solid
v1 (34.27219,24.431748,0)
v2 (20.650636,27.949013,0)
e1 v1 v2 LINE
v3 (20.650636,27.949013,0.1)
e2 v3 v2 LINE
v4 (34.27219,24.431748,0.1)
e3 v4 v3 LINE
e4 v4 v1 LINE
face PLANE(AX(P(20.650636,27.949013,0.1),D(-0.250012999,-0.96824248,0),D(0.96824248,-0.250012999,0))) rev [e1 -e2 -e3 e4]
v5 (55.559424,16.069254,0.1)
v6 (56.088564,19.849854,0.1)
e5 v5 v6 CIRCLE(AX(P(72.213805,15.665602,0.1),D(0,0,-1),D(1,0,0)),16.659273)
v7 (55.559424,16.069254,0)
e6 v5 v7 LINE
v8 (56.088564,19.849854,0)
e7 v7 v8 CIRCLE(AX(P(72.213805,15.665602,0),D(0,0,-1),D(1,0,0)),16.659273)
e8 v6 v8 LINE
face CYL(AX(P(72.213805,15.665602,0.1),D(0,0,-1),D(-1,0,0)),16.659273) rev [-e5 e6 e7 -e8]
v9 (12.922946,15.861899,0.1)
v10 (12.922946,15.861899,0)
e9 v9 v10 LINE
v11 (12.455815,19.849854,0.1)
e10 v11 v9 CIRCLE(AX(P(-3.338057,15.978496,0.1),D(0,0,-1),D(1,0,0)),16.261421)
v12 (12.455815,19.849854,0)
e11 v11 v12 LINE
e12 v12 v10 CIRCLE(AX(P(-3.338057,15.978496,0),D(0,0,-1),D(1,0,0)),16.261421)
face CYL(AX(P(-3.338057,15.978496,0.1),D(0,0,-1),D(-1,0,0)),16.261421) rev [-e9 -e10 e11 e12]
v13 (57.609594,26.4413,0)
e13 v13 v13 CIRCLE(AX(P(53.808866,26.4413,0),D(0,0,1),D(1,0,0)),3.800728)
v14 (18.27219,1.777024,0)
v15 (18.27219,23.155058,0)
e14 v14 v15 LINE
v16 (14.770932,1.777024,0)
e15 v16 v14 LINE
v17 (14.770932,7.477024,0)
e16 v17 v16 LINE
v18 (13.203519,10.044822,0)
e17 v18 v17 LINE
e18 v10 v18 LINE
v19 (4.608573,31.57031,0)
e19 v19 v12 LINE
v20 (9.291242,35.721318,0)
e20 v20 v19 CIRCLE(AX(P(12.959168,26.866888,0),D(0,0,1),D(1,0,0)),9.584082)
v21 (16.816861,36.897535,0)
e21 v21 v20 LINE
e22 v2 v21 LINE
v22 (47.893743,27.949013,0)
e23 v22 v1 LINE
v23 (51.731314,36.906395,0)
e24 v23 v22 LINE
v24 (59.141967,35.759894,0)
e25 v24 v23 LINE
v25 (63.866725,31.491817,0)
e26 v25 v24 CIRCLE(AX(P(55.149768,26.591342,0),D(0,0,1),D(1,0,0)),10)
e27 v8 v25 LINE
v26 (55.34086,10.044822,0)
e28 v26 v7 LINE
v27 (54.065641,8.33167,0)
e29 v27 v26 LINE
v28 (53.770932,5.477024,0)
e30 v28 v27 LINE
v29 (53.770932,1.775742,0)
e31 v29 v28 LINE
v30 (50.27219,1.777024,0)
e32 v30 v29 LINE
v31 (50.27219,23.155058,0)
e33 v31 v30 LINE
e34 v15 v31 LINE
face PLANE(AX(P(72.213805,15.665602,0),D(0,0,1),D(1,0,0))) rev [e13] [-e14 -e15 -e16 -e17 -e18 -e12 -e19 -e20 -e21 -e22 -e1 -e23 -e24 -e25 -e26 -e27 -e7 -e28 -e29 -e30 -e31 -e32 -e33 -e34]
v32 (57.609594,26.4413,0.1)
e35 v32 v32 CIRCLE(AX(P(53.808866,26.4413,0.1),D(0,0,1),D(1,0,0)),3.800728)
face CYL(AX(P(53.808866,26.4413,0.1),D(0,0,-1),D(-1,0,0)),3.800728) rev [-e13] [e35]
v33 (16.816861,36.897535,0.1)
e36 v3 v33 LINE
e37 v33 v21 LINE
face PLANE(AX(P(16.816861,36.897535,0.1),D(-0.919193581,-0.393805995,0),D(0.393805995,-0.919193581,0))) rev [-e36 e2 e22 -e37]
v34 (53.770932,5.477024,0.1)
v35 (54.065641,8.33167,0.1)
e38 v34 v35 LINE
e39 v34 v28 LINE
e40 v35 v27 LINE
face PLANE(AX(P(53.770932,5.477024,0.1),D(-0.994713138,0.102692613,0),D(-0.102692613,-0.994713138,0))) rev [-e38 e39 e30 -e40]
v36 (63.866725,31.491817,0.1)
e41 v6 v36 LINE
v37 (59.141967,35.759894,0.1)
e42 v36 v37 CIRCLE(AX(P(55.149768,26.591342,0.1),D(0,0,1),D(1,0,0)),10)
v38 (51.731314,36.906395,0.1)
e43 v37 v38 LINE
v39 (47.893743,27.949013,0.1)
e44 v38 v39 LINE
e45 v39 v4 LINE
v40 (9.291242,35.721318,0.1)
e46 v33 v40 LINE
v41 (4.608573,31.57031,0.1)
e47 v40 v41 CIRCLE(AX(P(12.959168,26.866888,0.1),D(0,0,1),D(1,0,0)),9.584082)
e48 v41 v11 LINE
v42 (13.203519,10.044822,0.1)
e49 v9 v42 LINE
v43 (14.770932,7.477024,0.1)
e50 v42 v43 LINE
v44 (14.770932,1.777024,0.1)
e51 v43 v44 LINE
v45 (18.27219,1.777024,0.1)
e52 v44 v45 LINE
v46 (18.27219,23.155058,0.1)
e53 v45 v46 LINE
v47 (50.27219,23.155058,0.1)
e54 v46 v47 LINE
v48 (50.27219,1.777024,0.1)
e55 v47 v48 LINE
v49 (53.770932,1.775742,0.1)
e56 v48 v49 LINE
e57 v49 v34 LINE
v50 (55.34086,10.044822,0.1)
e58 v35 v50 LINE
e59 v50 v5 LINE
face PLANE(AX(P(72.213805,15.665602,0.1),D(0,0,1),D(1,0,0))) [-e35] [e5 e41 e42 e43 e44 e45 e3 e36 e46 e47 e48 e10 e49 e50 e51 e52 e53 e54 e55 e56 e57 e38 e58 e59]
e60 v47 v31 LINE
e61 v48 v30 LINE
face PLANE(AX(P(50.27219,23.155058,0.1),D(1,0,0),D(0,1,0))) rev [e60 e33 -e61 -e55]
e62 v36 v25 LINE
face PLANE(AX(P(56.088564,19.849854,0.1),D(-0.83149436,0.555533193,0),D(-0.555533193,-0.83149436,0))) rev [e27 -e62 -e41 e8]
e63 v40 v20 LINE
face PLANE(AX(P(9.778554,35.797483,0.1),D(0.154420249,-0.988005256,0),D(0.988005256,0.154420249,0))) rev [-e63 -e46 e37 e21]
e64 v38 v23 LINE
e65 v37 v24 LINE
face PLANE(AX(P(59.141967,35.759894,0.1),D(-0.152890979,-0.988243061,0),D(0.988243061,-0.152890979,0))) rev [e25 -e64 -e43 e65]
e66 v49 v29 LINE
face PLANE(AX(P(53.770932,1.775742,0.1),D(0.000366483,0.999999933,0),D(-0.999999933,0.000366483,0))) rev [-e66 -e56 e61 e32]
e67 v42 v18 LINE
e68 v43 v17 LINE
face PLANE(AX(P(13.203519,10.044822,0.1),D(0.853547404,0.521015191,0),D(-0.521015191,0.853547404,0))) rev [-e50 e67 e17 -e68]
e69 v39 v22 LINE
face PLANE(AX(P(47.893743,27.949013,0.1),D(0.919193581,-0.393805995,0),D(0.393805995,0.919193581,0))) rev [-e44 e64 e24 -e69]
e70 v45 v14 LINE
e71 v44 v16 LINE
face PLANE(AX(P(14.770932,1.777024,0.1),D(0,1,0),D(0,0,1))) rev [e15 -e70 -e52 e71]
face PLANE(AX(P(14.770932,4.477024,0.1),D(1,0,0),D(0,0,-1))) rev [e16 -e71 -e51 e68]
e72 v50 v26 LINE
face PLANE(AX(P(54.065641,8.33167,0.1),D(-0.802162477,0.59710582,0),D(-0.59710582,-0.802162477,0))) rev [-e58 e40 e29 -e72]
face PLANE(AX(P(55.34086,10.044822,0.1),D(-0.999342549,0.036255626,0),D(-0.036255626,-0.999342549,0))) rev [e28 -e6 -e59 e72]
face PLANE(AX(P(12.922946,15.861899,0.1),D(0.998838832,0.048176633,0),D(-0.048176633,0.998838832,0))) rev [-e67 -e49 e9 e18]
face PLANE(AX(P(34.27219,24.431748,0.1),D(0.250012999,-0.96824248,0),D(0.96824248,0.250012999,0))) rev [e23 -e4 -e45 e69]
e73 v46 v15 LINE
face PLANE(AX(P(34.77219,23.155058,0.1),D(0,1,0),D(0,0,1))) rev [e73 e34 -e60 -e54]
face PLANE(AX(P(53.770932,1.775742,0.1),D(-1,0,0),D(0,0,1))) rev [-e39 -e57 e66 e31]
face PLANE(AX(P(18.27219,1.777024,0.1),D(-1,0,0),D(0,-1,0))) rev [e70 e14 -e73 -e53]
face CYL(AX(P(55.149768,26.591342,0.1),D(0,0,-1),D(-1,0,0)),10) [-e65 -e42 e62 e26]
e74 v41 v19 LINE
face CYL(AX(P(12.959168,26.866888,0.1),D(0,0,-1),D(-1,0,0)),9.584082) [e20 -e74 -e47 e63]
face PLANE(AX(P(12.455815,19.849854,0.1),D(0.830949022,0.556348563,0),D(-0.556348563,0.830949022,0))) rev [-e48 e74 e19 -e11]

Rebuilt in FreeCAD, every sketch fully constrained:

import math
import FreeCAD as App
import Part
import Sketcher
from FreeCAD import Vector
Q = App.Units.Quantity

doc = App.newDocument("Part")
body = doc.addObject("PartDesign::Body", "Body")

sketch1 = body.newObject("Sketcher::SketchObject", "Sketch")
sketch1.AttachmentSupport = (doc.getObject("XY_Plane"), [""])
sketch1.MapMode = "FlatFace"
sketch1.addGeometry([
    Part.LineSegment(Vector(13.69, 36.41, 0), Vector(9.78, 35.8, 0)),
    Part.LineSegment(Vector(9.78, 35.8, 0), Vector(9.29, 35.72, 0)),
    Part.ArcOfCircle(Part.Circle(Vector(12.96, 26.87, 0), Vector(0, 0, 1), 9.58), math.radians(113), math.radians(151)),
    Part.LineSegment(Vector(4.61, 31.57, 0), Vector(12.46, 19.85, 0)),
    Part.ArcOfCircle(Part.Circle(Vector(-3.34, 15.98, 0), Vector(0, 0, 1), 16.26), math.radians(-0.41), math.radians(13.77)),
    Part.LineSegment(Vector(12.92, 15.86, 0), Vector(13.2, 10.04, 0)),
    Part.LineSegment(Vector(13.2, 10.04, 0), Vector(14.77, 7.48, 0)),
    Part.LineSegment(Vector(14.77, 7.48, 0), Vector(14.77, 1.78, 0)),
    Part.LineSegment(Vector(14.77, 1.78, 0), Vector(18.27, 1.78, 0)),
    Part.LineSegment(Vector(18.27, 1.78, 0), Vector(18.27, 23.16, 0)),
    Part.LineSegment(Vector(18.27, 23.16, 0), Vector(50.27, 23.16, 0)),
    Part.LineSegment(Vector(50.27, 23.16, 0), Vector(50.27, 1.78, 0)),
    Part.LineSegment(Vector(50.27, 1.78, 0), Vector(53.77, 1.78, 0)),
    Part.LineSegment(Vector(53.77, 1.78, 0), Vector(53.77, 5.48, 0)),
    Part.LineSegment(Vector(53.77, 5.48, 0), Vector(54.07, 8.33, 0)),
    Part.LineSegment(Vector(54.07, 8.33, 0), Vector(55.34, 10.04, 0)),
    Part.LineSegment(Vector(55.34, 10.04, 0), Vector(55.56, 16.07, 0)),
    Part.ArcOfCircle(Part.Circle(Vector(72.21, 15.67, 0), Vector(0, 0, 1), 16.66), math.radians(165.45), math.radians(178.61)),
    Part.LineSegment(Vector(56.09, 19.85, 0), Vector(63.87, 31.49, 0)),
    Part.ArcOfCircle(Part.Circle(Vector(55.15, 26.59, 0), Vector(0, 0, 1), 10), math.radians(29), math.radians(66)),
    Part.LineSegment(Vector(59.14, 35.76, 0), Vector(51.73, 36.91, 0)),
    Part.LineSegment(Vector(51.73, 36.91, 0), Vector(47.89, 27.95, 0)),
    Part.LineSegment(Vector(47.89, 27.95, 0), Vector(34.27, 24.43, 0)),
    Part.LineSegment(Vector(34.27, 24.43, 0), Vector(20.65, 27.95, 0)),
    Part.LineSegment(Vector(20.65, 27.95, 0), Vector(16.82, 36.9, 0)),
    Part.LineSegment(Vector(16.82, 36.9, 0), Vector(13.69, 36.41, 0)),
    Part.Circle(Vector(53.81, 26.44, 0), Vector(0, 0, 1), 3.8),
], False)
sketch1.addConstraint([
    Sketcher.Constraint("Coincident", 0, 2, 1, 1),
    Sketcher.Constraint("Coincident", 1, 2, 2, 1),
    Sketcher.Constraint("Coincident", 2, 2, 3, 1),
    Sketcher.Constraint("Coincident", 3, 2, 4, 2),
    Sketcher.Constraint("Coincident", 4, 1, 5, 1),
    Sketcher.Constraint("Coincident", 5, 2, 6, 1),
    Sketcher.Constraint("Coincident", 6, 2, 7, 1),
    Sketcher.Constraint("Coincident", 7, 2, 8, 1),
    Sketcher.Constraint("Coincident", 8, 2, 9, 1),
    Sketcher.Constraint("Coincident", 9, 2, 10, 1),
    Sketcher.Constraint("Coincident", 10, 2, 11, 1),
    Sketcher.Constraint("Coincident", 11, 2, 12, 1),
    Sketcher.Constraint("Coincident", 12, 2, 13, 1),
    Sketcher.Constraint("Coincident", 13, 2, 14, 1),
    Sketcher.Constraint("Coincident", 14, 2, 15, 1),
    Sketcher.Constraint("Coincident", 15, 2, 16, 1),
    Sketcher.Constraint("Coincident", 16, 2, 17, 2),
    Sketcher.Constraint("Coincident", 17, 1, 18, 1),
    Sketcher.Constraint("Coincident", 18, 2, 19, 1),
    Sketcher.Constraint("Coincident", 19, 2, 20, 1),
    Sketcher.Constraint("Coincident", 20, 2, 21, 1),
    Sketcher.Constraint("Coincident", 21, 2, 22, 1),
    Sketcher.Constraint("Coincident", 22, 2, 23, 1),
    Sketcher.Constraint("Coincident", 23, 2, 24, 1),
    Sketcher.Constraint("Coincident", 24, 2, 25, 1),
    Sketcher.Constraint("Coincident", 25, 2, 0, 1),
    Sketcher.Constraint("Vertical", 7),
    Sketcher.Constraint("Horizontal", 8),
    Sketcher.Constraint("Vertical", 9),
    Sketcher.Constraint("Horizontal", 10),
    Sketcher.Constraint("Vertical", 11),
    Sketcher.Constraint("Vertical", 13),
    Sketcher.Constraint("Parallel", 0, 1),
    Sketcher.Constraint("Parallel", 1, 25),
    Sketcher.Constraint("Horizontal", 8, 2, 11, 2),
    Sketcher.Constraint("Horizontal", 5, 2, 15, 2),
    Sketcher.Constraint("Horizontal", 3, 2, 17, 1),
    Sketcher.Constraint("Horizontal", 21, 2, 23, 2),
    Sketcher.Constraint("Equal", 22, 23),
    Sketcher.Constraint("Radius", 19, Q("10 mm")),
    Sketcher.Constraint("DistanceX", 10, 1, 10, 2, Q("32 mm")),
    Sketcher.Constraint("DistanceY", 7, 2, 7, 1, Q("5.7 mm")),
    Sketcher.Constraint("DistanceX", 9, 2, 22, 2, Q("16 mm")),
    Sketcher.Constraint("DistanceY", 11, 2, 13, 2, Q("3.7 mm")),
    Sketcher.Constraint("Radius", 2, Q("9.584082 mm")),
    Sketcher.Constraint("Radius", 4, Q("16.261421 mm")),
    Sketcher.Constraint("Diameter", 26, Q("7.601457 mm")),
    Sketcher.Constraint("Radius", 17, Q("16.659273 mm")),
    Sketcher.Constraint("DistanceY", -1, 1, 26, 3, Q("26.4413 mm")),
    Sketcher.Constraint("DistanceY", -1, 1, 4, 1, Q("15.861899 mm")),
    Sketcher.Constraint("DistanceX", 2, 3, 19, 3, Q("42.190599 mm")),
    Sketcher.Constraint("DistanceX", 26, 3, 19, 3, Q("1.340902 mm")),
    Sketcher.Constraint("DistanceX", 4, 3, 1, 2, Q("12.629299 mm")),
    Sketcher.Constraint("DistanceY", 12, 2, 19, 3, Q("24.8156 mm")),
    Sketcher.Constraint("DistanceY", 16, 2, 17, 1, Q("3.7806 mm")),
    Sketcher.Constraint("DistanceX", 26, 3, 17, 1, Q("2.279698 mm")),
    Sketcher.Constraint("DistanceX", 16, 2, 18, 2, Q("8.307301 mm")),
    Sketcher.Constraint("DistanceX", 19, 3, 19, 2, Q("3.9922 mm")),
    Sketcher.Constraint("DistanceY", 19, 2, 20, 2, Q("1.146501 mm")),
    Sketcher.Constraint("Distance", 0, Q("3.961891 mm")),
    Sketcher.Constraint("Distance", 1, Q("0.493229 mm")),
    Sketcher.Constraint("Distance", 5, Q("5.82384 mm")),
    Sketcher.Constraint("Distance", 14, Q("2.869818 mm")),
    Sketcher.Constraint("Distance", 22, Q("14.068329 mm")),
    Sketcher.Constraint("DistanceX", 8, 1, 8, 2, Q("3.501257 mm")),
    Sketcher.Constraint("DistanceY", 9, 1, 9, 2, Q("21.378034 mm")),
    Sketcher.Constraint("DistanceY", 13, 1, 13, 2, Q("3.701282 mm")),
    Sketcher.Constraint("DistanceX", -1, 1, 2, 3, Q("12.959168 mm")),
    Sketcher.Constraint("DistanceX", -1, 1, 1, 2, Q("9.291242 mm")),
    Sketcher.Constraint("DistanceY", -1, 1, 1, 2, Q("35.721318 mm")),
    Sketcher.Constraint("DistanceY", -1, 1, 2, 2, Q("31.57031 mm")),
    Sketcher.Constraint("DistanceX", -1, 1, 5, 2, Q("13.203519 mm")),
    Sketcher.Constraint("DistanceX", -1, 1, 8, 2, Q("18.27219 mm")),
    Sketcher.Constraint("DistanceY", -1, 1, 9, 2, Q("23.155058 mm")),
    Sketcher.Constraint("DistanceX", -1, 1, 14, 2, Q("54.065641 mm")),
    Sketcher.Constraint("DistanceY", -1, 1, 14, 2, Q("8.33167 mm")),
    Sketcher.Constraint("DistanceX", -1, 1, 15, 2, Q("55.34086 mm")),
    Sketcher.Constraint("DistanceY", -1, 1, 22, 2, Q("24.431748 mm")),
    Sketcher.Constraint("DistanceX", -1, 1, 24, 2, Q("16.816861 mm")),
    Sketcher.Constraint("DistanceY", -1, 1, 25, 2, Q("36.409279 mm")),
    Sketcher.Constraint("DistanceY", 4, 3, 2, 3, Q("10.888392 mm")),
    Sketcher.Constraint("DistanceY", 17, 3, 19, 3, Q("10.92574 mm")),
    Sketcher.Constraint("DistanceX", 26, 3, 17, 3, Q("18.404939 mm")),
    Sketcher.Constraint("DistanceX", 20, 2, 26, 3, Q("2.077552 mm")),
    Sketcher.Constraint("DistanceY", 19, 3, 21, 2, Q("1.357671 mm")),
])
pad1 = body.newObject("PartDesign::Pad", "Pad")
pad1.Profile = sketch1
pad1.Length = 0.1

doc.recompute()
